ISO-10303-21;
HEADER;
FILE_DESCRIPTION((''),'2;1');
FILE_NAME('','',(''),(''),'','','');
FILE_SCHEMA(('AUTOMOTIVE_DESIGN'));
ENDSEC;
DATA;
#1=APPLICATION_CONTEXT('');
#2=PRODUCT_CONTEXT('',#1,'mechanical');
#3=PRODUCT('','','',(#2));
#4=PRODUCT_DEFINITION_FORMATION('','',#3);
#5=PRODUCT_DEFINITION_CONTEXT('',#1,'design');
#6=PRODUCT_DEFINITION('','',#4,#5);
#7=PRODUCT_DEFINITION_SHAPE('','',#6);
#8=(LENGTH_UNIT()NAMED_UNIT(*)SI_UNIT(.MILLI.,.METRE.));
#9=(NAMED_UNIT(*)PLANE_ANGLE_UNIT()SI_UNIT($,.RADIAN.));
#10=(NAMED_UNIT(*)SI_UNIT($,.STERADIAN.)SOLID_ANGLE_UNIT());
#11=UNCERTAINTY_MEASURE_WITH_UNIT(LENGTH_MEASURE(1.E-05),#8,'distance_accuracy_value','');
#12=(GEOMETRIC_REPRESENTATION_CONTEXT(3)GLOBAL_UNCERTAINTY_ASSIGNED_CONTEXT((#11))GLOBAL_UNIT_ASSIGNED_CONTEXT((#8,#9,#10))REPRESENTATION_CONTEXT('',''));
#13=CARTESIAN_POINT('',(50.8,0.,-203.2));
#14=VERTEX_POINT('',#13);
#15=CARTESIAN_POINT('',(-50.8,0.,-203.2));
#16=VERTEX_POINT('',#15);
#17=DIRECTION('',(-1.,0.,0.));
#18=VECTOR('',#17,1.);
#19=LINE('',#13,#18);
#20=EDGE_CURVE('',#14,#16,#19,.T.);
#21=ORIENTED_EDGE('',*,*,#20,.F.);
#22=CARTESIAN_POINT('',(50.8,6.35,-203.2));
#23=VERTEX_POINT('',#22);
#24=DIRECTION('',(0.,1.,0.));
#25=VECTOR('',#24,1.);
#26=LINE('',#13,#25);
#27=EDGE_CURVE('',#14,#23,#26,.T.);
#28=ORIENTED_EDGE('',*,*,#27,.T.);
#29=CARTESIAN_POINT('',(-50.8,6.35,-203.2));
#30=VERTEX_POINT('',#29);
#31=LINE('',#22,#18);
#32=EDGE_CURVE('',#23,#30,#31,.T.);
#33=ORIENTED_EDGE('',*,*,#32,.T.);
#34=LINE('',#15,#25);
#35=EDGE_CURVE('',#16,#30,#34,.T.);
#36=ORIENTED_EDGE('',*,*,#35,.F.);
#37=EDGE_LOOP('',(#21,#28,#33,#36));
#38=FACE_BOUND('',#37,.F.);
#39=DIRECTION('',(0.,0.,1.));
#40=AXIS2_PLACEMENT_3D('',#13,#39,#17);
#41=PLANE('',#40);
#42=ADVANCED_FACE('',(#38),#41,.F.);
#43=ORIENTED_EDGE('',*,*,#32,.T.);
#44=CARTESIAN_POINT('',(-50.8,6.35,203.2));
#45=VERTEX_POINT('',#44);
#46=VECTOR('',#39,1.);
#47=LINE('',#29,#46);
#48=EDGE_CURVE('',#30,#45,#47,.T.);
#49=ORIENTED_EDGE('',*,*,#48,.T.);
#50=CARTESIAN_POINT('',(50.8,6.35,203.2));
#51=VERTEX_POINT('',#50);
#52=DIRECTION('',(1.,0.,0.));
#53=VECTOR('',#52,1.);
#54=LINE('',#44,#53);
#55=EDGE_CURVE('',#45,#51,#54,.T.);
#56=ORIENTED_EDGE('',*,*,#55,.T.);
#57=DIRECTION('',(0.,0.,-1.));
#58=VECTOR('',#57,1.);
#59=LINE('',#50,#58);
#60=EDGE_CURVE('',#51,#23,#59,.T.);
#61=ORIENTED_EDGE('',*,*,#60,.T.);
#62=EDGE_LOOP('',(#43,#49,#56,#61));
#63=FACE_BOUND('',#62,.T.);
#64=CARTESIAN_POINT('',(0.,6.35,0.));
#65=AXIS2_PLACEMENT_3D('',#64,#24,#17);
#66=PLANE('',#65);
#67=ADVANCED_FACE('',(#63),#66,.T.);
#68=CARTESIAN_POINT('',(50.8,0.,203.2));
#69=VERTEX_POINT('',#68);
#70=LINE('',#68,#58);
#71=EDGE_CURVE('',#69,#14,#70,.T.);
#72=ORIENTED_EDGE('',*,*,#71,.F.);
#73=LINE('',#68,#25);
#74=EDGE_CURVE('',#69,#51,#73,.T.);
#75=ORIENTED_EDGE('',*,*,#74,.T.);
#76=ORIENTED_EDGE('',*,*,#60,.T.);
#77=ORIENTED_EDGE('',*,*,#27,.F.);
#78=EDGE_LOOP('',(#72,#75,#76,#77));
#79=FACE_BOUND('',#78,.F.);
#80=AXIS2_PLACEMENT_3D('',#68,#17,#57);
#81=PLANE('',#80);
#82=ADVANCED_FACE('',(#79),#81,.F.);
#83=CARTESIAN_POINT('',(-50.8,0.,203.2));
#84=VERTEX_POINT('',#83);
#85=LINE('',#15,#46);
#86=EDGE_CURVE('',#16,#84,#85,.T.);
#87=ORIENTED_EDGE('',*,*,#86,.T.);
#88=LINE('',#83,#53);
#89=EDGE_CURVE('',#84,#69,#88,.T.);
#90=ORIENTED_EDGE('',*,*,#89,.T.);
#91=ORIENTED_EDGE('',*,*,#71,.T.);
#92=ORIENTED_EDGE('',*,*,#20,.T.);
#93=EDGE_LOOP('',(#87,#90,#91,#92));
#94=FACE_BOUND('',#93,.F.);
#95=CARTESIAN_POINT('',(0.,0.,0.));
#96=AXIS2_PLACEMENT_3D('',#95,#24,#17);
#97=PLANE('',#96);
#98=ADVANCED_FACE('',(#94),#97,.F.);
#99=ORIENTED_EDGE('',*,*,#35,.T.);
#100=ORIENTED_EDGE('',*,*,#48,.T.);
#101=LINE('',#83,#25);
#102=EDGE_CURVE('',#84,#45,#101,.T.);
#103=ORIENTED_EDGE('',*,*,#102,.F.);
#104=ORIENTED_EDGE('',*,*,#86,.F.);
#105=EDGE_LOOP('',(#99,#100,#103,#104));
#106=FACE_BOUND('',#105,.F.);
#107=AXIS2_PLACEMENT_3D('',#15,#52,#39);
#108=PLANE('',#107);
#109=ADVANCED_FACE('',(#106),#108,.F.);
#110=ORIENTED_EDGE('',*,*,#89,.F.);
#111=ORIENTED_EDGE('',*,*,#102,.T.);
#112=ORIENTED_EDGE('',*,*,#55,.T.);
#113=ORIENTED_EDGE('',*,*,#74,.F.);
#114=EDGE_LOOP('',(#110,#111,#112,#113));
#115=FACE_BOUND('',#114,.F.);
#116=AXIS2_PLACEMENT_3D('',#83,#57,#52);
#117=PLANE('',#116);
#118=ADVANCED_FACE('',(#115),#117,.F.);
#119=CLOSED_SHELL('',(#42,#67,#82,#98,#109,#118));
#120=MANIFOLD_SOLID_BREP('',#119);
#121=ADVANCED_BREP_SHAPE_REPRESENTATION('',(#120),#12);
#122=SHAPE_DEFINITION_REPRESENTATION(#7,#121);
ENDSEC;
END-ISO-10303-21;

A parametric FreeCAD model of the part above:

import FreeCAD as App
import Part
import Sketcher

V = App.Vector
Q = App.Units.Quantity


def add_polygon(sketch, points):
    """Adds a closed chain of lines whose ends are joined by coincident constraints."""
    first, n = sketch.GeometryCount, len(points)
    for a, b in zip(points, points[1:] + points[:1]):
        sketch.addGeometry(Part.LineSegment(App.Vector(*a, 0), App.Vector(*b, 0)), False)
    for i in range(n):
        sketch.addConstraint(Sketcher.Constraint("Coincident", first + i, 2, first + (i + 1) % n, 1))

doc = App.newDocument("Part")
params = doc.addObject("Spreadsheet::Sheet", "Params")
for row, (alias, value) in enumerate([
    ("sketch1_width", "4 in"),
    ("sketch1_height", "16 in"),
    ("pad1_length", "0.25 in"),
], start=1):
    params.set(f"A{row}", alias)
    params.set(f"B{row}", "=" + value)
    params.setAlias(f"B{row}", alias)

body = doc.addObject("PartDesign::Body", "Body")

sketch1 = body.newObject("Sketcher::SketchObject", "Sketch")
sketch1.AttachmentSupport = (doc.getObject("XZ_Plane"), [""])
sketch1.MapMode = "FlatFace"
add_polygon(sketch1, [(-50.8, -203.2), (-50.8, 203.2), (50.8, 203.2), (50.8, -203.2)])
sketch1.addConstraint([
    Sketcher.Constraint("Vertical", 0),
    Sketcher.Constraint("Horizontal", 1),
    Sketcher.Constraint("Vertical", 2),
    Sketcher.Constraint("Horizontal", 3),
    Sketcher.Constraint("Symmetric", 0, 2, 2, 2, -1, 1),
    Sketcher.Constraint("DistanceX", 1, 1, 1, 2, Q("4 in")),
    Sketcher.Constraint("DistanceY", 0, 1, 0, 2, Q("16 in")),
])
sketch1.setExpression("Constraints[9]", "Params.sketch1_width")
sketch1.setExpression("Constraints[10]", "Params.sketch1_height")
pad1 = body.newObject("PartDesign::Pad", "Pad")
pad1.Profile = sketch1
pad1.setExpression("Length", "Params.pad1_length")
pad1.Reversed = True

doc.recompute()
